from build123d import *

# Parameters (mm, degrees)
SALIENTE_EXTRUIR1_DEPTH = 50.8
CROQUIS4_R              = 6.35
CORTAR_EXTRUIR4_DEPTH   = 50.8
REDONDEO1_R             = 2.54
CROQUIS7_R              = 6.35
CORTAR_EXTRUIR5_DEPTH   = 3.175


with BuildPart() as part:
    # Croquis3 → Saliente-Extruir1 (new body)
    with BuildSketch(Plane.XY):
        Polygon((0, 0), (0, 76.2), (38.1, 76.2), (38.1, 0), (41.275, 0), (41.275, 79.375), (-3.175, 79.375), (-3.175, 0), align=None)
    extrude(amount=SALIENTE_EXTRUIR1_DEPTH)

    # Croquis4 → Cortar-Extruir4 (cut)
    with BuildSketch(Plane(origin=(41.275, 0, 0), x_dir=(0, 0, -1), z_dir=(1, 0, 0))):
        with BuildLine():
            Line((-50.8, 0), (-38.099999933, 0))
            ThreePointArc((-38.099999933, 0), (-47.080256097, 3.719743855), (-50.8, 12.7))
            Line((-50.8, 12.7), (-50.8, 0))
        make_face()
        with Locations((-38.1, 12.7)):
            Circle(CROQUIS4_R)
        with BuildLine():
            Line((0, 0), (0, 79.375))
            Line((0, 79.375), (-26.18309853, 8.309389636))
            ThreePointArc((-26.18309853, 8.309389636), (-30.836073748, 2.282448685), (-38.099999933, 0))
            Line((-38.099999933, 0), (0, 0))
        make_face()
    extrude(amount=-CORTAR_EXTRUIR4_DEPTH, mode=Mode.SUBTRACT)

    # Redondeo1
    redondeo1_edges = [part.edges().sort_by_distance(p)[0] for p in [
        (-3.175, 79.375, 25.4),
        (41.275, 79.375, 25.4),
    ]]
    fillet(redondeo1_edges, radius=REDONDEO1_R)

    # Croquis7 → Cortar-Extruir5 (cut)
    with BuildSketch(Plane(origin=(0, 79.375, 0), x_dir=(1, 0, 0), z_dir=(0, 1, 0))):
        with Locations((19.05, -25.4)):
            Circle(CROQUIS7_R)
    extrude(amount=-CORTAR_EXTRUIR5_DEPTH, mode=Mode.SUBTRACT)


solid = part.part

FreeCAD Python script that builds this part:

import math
import FreeCAD as App
import Part
import Sketcher
from FreeCAD import Vector
Q = App.Units.Quantity


def edges_at(feature, points):
    """Names of the edges that pass closest to the given points."""
    edges = feature.Shape.Edges
    near = lambda p: min(range(len(edges)), key=lambda i: edges[i].distToShape(Part.Vertex(*p))[0])
    return sorted({f"Edge{near(p) + 1}" for p in points})


def add_polygon(sketch, points):
    """Adds a closed chain of lines whose ends are joined by coincident constraints."""
    first, n = sketch.GeometryCount, len(points)
    for a, b in zip(points, points[1:] + points[:1]):
        sketch.addGeometry(Part.LineSegment(App.Vector(*a, 0), App.Vector(*b, 0)), False)
    for i in range(n):
        sketch.addConstraint(Sketcher.Constraint("Coincident", first + i, 2, first + (i + 1) % n, 1))

doc = App.newDocument("Part")
body = doc.addObject("PartDesign::Body", "Body")

# Sketch on XY plane
sketch1 = body.newObject("Sketcher::SketchObject", "Sketch")
sketch1.AttachmentSupport = (doc.getObject("XY_Plane"), [""])
sketch1.MapMode = "FlatFace"
add_polygon(sketch1, [(0, 0), (0, 76.2), (38.1, 76.2), (38.1, 0), (41.3, 0), (41.3, 79.4), (-3.2, 79.4), (-3.2, 0)])  # lines 0-7
sketch1.addConstraint(Sketcher.Constraint("Vertical", 0))
sketch1.addConstraint(Sketcher.Constraint("Horizontal", 1))
sketch1.addConstraint(Sketcher.Constraint("Vertical", 2))
sketch1.addConstraint(Sketcher.Constraint("Horizontal", 3))
sketch1.addConstraint(Sketcher.Constraint("Vertical", 4))
sketch1.addConstraint(Sketcher.Constraint("Horizontal", 5))
sketch1.addConstraint(Sketcher.Constraint("Vertical", 6))
sketch1.addConstraint(Sketcher.Constraint("Horizontal", 7))
sketch1.addConstraint(Sketcher.Constraint("Coincident", 7, 2, -1, 1))
sketch1.addConstraint(Sketcher.Constraint("PointOnObject", 2, 2, -1))
sketch1.addConstraint(Sketcher.Constraint("Equal", 3, 7))
sketch1.addConstraint(Sketcher.Constraint("DistanceY", 0, 1, 0, 2, Q("3 in")))
sketch1.addConstraint(Sketcher.Constraint("DistanceX", 1, 1, 1, 2, Q("1.5 in")))
sketch1.addConstraint(Sketcher.Constraint("DistanceX", 5, 2, 5, 1, Q("1.75 in")))
sketch1.addConstraint(Sketcher.Constraint("DistanceY", 4, 1, 4, 2, Q("3.125 in")))
pad1 = body.newObject("PartDesign::Pad", "Pad")
pad1.Profile = sketch1
pad1.Length = Q("2 in")

# Sketch on YZ plane
sketch2 = body.newObject("Sketcher::SketchObject", "Sketch001")
sketch2.AttachmentSupport = (doc.getObject("YZ_Plane"), [""])
sketch2.MapMode = "FlatFace"
sketch2.AttachmentOffset = App.Placement(Vector(0, 0, 1.625 * 25.4), App.Rotation())
sketch2.addGeometry(Part.LineSegment(Vector(0, 51, 0), Vector(0, 38, 0)), False)
sketch2.addGeometry(Part.ArcOfCircle(Part.Circle(Vector(13, 38, 0), Vector(0, 0, 1), 13), math.radians(90), math.radians(180)), False)
sketch2.addGeometry(Part.LineSegment(Vector(13, 51, 0), Vector(0, 51, 0)), False)
sketch2.addGeometry(Part.Circle(Vector(13, 38, 0), Vector(0, 0, 1), 6), False)
sketch2.addGeometry(Part.LineSegment(Vector(0, 0, 0), Vector(79, 0, 0)), False)
sketch2.addGeometry(Part.LineSegment(Vector(79, 0, 0), Vector(8, 26, 0)), False)
sketch2.addGeometry(Part.ArcOfCircle(Part.Circle(Vector(13, 38, 0), Vector(0, 0, 1), 13), math.radians(-180), math.radians(-110)), False)
sketch2.addGeometry(Part.LineSegment(Vector(0, 38, 0), Vector(0, 0, 0)), False)
sketch2.addConstraint(Sketcher.Constraint("Tangent", 0, 2, 1, 2))
sketch2.addConstraint(Sketcher.Constraint("Tangent", 1, 1, 2, 1))
sketch2.addConstraint(Sketcher.Constraint("Coincident", 2, 2, 0, 1))
sketch2.addConstraint(Sketcher.Constraint("Coincident", 4, 2, 5, 1))
sketch2.addConstraint(Sketcher.Constraint("Tangent", 5, 2, 6, 2))
sketch2.addConstraint(Sketcher.Constraint("Tangent", 6, 1, 7, 1))
sketch2.addConstraint(Sketcher.Constraint("Coincident", 7, 2, 4, 1))
sketch2.addConstraint(Sketcher.Constraint("Vertical", 0))
sketch2.addConstraint(Sketcher.Constraint("Horizontal", 2))
sketch2.addConstraint(Sketcher.Constraint("Horizontal", 4))
sketch2.addConstraint(Sketcher.Constraint("Vertical", 7))
sketch2.addConstraint(Sketcher.Constraint("Coincident", 7, 2, -1, 1))
sketch2.addConstraint(Sketcher.Constraint("Coincident", 3, 3, 1, 3))
sketch2.addConstraint(Sketcher.Constraint("Coincident", 6, 3, 1, 3))
sketch2.addConstraint(Sketcher.Constraint("Equal", 1, 6))
sketch2.addConstraint(Sketcher.Constraint("Diameter", 3, Q("0.5 in")))
sketch2.addConstraint(Sketcher.Constraint("Radius", 1, Q("0.5 in")))
sketch2.addConstraint(Sketcher.Constraint("DistanceY", 7, 2, 7, 1, Q("1.5 in")))
sketch2.addConstraint(Sketcher.Constraint("DistanceX", 4, 1, 4, 2, Q("3.125 in")))
pocket1 = body.newObject("PartDesign::Pocket", "Pocket")
pocket1.Profile = sketch2
pocket1.Length = Q("2 in")
doc.recompute()

fillet = body.newObject("PartDesign::Fillet", "Fillet")
fillet.Base = (pocket1, edges_at(pocket1, [(-3.175, 79.375, 25.4), (41.275, 79.375, 25.4)]))
fillet.Radius = Q("0.1 in")

# Sketch on XZ plane
sketch3 = body.newObject("Sketcher::SketchObject", "Sketch002")
sketch3.AttachmentSupport = (doc.getObject("XZ_Plane"), [""])
sketch3.MapMode = "FlatFace"
sketch3.AttachmentOffset = App.Placement(Vector(0, 0, -3.125 * 25.4), App.Rotation())
sketch3.addGeometry(Part.Circle(Vector(19, 25, 0), Vector(0, 0, 1), 6), False)
sketch3.addConstraint(Sketcher.Constraint("Diameter", 0, Q("0.5 in")))
sketch3.addConstraint(Sketcher.Constraint("DistanceY", -1, 1, 0, 3, Q("1 in")))
sketch3.addConstraint(Sketcher.Constraint("DistanceX", -1, 1, 0, 3, Q("0.75 in")))
pocket2 = body.newObject("PartDesign::Pocket", "Pocket001")
pocket2.Profile = sketch3
pocket2.Length = Q("0.125 in")
pocket2.Reversed = True

doc.recompute()
